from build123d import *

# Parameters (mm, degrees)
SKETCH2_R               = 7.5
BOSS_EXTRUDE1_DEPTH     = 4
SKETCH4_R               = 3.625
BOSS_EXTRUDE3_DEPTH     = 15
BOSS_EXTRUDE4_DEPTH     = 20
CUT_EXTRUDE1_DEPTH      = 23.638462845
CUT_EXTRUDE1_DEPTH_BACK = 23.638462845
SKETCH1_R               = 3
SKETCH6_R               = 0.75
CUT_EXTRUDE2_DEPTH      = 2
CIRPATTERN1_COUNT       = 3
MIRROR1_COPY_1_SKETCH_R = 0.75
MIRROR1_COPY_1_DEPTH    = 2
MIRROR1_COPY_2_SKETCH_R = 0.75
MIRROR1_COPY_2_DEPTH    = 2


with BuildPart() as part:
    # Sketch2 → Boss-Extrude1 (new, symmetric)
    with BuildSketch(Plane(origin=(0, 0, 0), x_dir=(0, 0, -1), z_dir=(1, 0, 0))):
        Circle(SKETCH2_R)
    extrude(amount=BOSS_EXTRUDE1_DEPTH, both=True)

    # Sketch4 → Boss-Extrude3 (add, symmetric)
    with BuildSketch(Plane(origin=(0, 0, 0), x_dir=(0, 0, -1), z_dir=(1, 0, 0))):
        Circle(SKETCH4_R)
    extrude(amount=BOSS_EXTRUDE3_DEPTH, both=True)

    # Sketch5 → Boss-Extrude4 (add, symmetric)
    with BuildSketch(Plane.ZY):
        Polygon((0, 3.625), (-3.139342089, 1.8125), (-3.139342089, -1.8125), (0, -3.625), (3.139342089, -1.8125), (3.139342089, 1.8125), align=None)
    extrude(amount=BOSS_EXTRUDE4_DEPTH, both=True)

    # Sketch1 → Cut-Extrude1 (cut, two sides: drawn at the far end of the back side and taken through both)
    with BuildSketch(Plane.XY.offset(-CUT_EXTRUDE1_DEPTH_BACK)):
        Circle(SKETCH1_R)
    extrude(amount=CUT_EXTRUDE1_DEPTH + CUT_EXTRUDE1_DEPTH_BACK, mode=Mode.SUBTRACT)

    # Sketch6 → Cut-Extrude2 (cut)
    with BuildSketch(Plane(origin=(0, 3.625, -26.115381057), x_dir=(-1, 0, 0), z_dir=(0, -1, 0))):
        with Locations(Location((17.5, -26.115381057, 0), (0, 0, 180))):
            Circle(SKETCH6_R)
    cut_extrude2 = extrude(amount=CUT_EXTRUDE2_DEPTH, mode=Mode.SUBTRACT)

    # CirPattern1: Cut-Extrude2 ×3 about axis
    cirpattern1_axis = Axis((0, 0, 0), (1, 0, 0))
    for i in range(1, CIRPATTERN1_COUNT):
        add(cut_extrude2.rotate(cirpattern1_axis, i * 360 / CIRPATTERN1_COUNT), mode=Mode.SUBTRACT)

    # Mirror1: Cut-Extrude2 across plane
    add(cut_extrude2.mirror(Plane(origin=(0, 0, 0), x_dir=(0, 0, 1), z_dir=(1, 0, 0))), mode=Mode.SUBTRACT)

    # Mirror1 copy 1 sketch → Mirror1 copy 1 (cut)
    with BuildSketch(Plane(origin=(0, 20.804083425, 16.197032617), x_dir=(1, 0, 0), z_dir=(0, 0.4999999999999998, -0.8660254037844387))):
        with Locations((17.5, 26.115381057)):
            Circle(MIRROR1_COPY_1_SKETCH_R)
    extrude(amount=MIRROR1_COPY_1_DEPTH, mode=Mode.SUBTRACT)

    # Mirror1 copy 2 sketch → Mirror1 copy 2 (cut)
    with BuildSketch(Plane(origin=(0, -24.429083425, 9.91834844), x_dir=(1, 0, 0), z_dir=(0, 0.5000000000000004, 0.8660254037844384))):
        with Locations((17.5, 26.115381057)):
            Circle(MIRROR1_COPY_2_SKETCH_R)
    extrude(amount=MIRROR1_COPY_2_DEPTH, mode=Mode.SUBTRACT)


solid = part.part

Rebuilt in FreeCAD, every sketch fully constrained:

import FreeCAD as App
import Part
import Sketcher
from FreeCAD import Vector
Q = App.Units.Quantity


def add_polygon(sketch, points):
    """Adds a closed chain of lines whose ends are joined by coincident constraints."""
    first, n = sketch.GeometryCount, len(points)
    for a, b in zip(points, points[1:] + points[:1]):
        sketch.addGeometry(Part.LineSegment(App.Vector(*a, 0), App.Vector(*b, 0)), False)
    for i in range(n):
        sketch.addConstraint(Sketcher.Constraint("Coincident", first + i, 2, first + (i + 1) % n, 1))

doc = App.newDocument("Part")
body = doc.addObject("PartDesign::Body", "Body")

sketch1 = doc.addObject("Sketcher::SketchObject", "Sketch")
body.addObject(sketch1)
sketch1.AttachmentSupport = (doc.YZ_Plane, [""])
sketch1.MapMode = "FlatFace"
sketch1.addGeometry(Part.Circle(Vector(0, 0, 0), Vector(0, 0, 1), 8), False)
sketch1.addConstraint(Sketcher.Constraint("Coincident", 0, 3, -1, 1))
sketch1.addConstraint(Sketcher.Constraint("Diameter", 0, 15.0))
pad1 = doc.addObject("PartDesign::Pad", "Pad")
body.addObject(pad1)
pad1.Profile = sketch1
pad1.Length = 8
pad1.Midplane = True

sketch2 = doc.addObject("Sketcher::SketchObject", "Sketch001")
body.addObject(sketch2)
sketch2.AttachmentSupport = (doc.YZ_Plane, [""])
sketch2.MapMode = "FlatFace"
sketch2.addGeometry(Part.Circle(Vector(0, 0, 0), Vector(0, 0, 1), 3.6), False)
sketch2.addConstraint(Sketcher.Constraint("Coincident", 0, 3, -1, 1))
sketch2.addConstraint(Sketcher.Constraint("Diameter", 0, 7.25))
pad2 = doc.addObject("PartDesign::Pad", "Pad001")
body.addObject(pad2)
pad2.Profile = sketch2
pad2.Length = 30
pad2.Midplane = True

sketch3 = doc.addObject("Sketcher::SketchObject", "Sketch002")
body.addObject(sketch3)
sketch3.AttachmentSupport = (doc.YZ_Plane, [""])
sketch3.MapMode = "FlatFace"
add_polygon(sketch3, [(3.6, 0), (1.8, -3.1), (-1.8, -3.1), (-3.6, 0), (-1.8, 3.1), (1.8, 3.1)])
sketch3.addConstraint(Sketcher.Constraint("Horizontal", 1))
sketch3.addConstraint(Sketcher.Constraint("Horizontal", 4))
sketch3.addConstraint(Sketcher.Constraint("Symmetric", 0, 2, 3, 2, -1, 1))
sketch3.addConstraint(Sketcher.Constraint("Symmetric", 2, 2, 5, 2, -1, 1))
sketch3.addConstraint(Sketcher.Constraint("PointOnObject", 2, 2, -1))
sketch3.addConstraint(Sketcher.Constraint("Parallel", 2, 5))
sketch3.addConstraint(Sketcher.Constraint("Vertical", 1, 2, 3, 2))
sketch3.addConstraint(Sketcher.Constraint("Angle", 0, Q("-120 deg")))
sketch3.addConstraint(Sketcher.Constraint("DistanceX", 1, 2, 1, 1, 3.625))
sketch3.addConstraint(Sketcher.Constraint("DistanceX", 2, 2, 5, 2, 7.25))
pad3 = doc.addObject("PartDesign::Pad", "Pad002")
body.addObject(pad3)
pad3.Profile = sketch3
pad3.Length = 40
pad3.Midplane = True

sketch4 = doc.addObject("Sketcher::SketchObject", "Sketch003")
body.addObject(sketch4)
sketch4.AttachmentSupport = (doc.XY_Plane, [""])
sketch4.MapMode = "FlatFace"
sketch4.addGeometry(Part.Circle(Vector(0, 0, 0), Vector(0, 0, 1), 3), False)
sketch4.addConstraint(Sketcher.Constraint("Coincident", 0, 3, -1, 1))
sketch4.addConstraint(Sketcher.Constraint("Diameter", 0, 6.0))
pocket1 = doc.addObject("PartDesign::Pocket", "Pocket")
body.addObject(pocket1)
pocket1.Profile = sketch4
pocket1.Type = "ThroughAll"
pocket1.Midplane = True

sketch5 = doc.addObject("Sketcher::SketchObject", "Sketch004")
body.addObject(sketch5)
sketch5.AttachmentSupport = (doc.XZ_Plane, [""])
sketch5.MapMode = "FlatFace"
sketch5.AttachmentOffset = App.Placement(Vector(0, 0, -3.625), App.Rotation())
sketch5.addGeometry(Part.Circle(Vector(-17.5, 0, 0), Vector(0, 0, 1), 0.8), False)
sketch5.addConstraint(Sketcher.Constraint("PointOnObject", 0, 3, -1))
sketch5.addConstraint(Sketcher.Constraint("Diameter", 0, 1.5))
sketch5.addConstraint(Sketcher.Constraint("DistanceX", 0, 3, -1, 1, 17.5))
pocket2 = doc.addObject("PartDesign::Pocket", "Pocket001")
body.addObject(pocket2)
pocket2.Profile = sketch5
pocket2.Length = 2
pocket2.Reversed = True
doc.recompute()

polarpattern = doc.addObject("PartDesign::PolarPattern", "PolarPattern")
body.addObject(polarpattern)
polarpattern.Originals = [pocket2]
polarpattern.Axis = (doc.X_Axis, [""])
polarpattern.Angle = 360
polarpattern.Occurrences = 3
body.Tip = polarpattern
doc.recompute()

mirrored = doc.addObject("PartDesign::Mirrored", "Mirrored")
body.addObject(mirrored)
mirrored.Originals = [pocket2]
mirrored.MirrorPlane = (doc.YZ_Plane, [""])
body.Tip = mirrored

sketch6 = doc.addObject("Sketcher::SketchObject", "Sketch005")
body.addObject(sketch6)
sketch6.Placement = App.Placement(Vector(0, 20.804083, 16.197033), App.Rotation(Vector(1, 0, 0), Vector(0, -0.866025404, -0.5), Vector(0, 0.5, -0.866025404), "ZXY"))
sketch6.addGeometry(Part.Circle(Vector(17.5, 26.1, 0), Vector(0, 0, 1), 0.8), False)
sketch6.addConstraint(Sketcher.Constraint("Diameter", 0, 1.5))
sketch6.addConstraint(Sketcher.Constraint("DistanceX", -1, 1, 0, 3, 17.5))
sketch6.addConstraint(Sketcher.Constraint("DistanceY", -1, 1, 0, 3, 26.115381))
pocket3 = doc.addObject("PartDesign::Pocket", "Pocket002")
body.addObject(pocket3)
pocket3.Profile = sketch6
pocket3.Length = 2
pocket3.Reversed = True

sketch7 = doc.addObject("Sketcher::SketchObject", "Sketch006")
body.addObject(sketch7)
sketch7.Placement = App.Placement(Vector(0, -24.429083, 9.918348), App.Rotation(Vector(1, 0, 0), Vector(0, 0.866025404, -0.5), Vector(0, 0.5, 0.866025404), "ZXY"))
sketch7.addGeometry(Part.Circle(Vector(17.5, 26.1, 0), Vector(0, 0, 1), 0.8), False)
sketch7.addConstraint(Sketcher.Constraint("Diameter", 0, 1.5))
sketch7.addConstraint(Sketcher.Constraint("DistanceX", -1, 1, 0, 3, 17.5))
sketch7.addConstraint(Sketcher.Constraint("DistanceY", -1, 1, 0, 3, 26.115381))
pocket4 = doc.addObject("PartDesign::Pocket", "Pocket003")
body.addObject(pocket4)
pocket4.Profile = sketch7
pocket4.Length = 2
pocket4.Reversed = True

doc.recompute()
